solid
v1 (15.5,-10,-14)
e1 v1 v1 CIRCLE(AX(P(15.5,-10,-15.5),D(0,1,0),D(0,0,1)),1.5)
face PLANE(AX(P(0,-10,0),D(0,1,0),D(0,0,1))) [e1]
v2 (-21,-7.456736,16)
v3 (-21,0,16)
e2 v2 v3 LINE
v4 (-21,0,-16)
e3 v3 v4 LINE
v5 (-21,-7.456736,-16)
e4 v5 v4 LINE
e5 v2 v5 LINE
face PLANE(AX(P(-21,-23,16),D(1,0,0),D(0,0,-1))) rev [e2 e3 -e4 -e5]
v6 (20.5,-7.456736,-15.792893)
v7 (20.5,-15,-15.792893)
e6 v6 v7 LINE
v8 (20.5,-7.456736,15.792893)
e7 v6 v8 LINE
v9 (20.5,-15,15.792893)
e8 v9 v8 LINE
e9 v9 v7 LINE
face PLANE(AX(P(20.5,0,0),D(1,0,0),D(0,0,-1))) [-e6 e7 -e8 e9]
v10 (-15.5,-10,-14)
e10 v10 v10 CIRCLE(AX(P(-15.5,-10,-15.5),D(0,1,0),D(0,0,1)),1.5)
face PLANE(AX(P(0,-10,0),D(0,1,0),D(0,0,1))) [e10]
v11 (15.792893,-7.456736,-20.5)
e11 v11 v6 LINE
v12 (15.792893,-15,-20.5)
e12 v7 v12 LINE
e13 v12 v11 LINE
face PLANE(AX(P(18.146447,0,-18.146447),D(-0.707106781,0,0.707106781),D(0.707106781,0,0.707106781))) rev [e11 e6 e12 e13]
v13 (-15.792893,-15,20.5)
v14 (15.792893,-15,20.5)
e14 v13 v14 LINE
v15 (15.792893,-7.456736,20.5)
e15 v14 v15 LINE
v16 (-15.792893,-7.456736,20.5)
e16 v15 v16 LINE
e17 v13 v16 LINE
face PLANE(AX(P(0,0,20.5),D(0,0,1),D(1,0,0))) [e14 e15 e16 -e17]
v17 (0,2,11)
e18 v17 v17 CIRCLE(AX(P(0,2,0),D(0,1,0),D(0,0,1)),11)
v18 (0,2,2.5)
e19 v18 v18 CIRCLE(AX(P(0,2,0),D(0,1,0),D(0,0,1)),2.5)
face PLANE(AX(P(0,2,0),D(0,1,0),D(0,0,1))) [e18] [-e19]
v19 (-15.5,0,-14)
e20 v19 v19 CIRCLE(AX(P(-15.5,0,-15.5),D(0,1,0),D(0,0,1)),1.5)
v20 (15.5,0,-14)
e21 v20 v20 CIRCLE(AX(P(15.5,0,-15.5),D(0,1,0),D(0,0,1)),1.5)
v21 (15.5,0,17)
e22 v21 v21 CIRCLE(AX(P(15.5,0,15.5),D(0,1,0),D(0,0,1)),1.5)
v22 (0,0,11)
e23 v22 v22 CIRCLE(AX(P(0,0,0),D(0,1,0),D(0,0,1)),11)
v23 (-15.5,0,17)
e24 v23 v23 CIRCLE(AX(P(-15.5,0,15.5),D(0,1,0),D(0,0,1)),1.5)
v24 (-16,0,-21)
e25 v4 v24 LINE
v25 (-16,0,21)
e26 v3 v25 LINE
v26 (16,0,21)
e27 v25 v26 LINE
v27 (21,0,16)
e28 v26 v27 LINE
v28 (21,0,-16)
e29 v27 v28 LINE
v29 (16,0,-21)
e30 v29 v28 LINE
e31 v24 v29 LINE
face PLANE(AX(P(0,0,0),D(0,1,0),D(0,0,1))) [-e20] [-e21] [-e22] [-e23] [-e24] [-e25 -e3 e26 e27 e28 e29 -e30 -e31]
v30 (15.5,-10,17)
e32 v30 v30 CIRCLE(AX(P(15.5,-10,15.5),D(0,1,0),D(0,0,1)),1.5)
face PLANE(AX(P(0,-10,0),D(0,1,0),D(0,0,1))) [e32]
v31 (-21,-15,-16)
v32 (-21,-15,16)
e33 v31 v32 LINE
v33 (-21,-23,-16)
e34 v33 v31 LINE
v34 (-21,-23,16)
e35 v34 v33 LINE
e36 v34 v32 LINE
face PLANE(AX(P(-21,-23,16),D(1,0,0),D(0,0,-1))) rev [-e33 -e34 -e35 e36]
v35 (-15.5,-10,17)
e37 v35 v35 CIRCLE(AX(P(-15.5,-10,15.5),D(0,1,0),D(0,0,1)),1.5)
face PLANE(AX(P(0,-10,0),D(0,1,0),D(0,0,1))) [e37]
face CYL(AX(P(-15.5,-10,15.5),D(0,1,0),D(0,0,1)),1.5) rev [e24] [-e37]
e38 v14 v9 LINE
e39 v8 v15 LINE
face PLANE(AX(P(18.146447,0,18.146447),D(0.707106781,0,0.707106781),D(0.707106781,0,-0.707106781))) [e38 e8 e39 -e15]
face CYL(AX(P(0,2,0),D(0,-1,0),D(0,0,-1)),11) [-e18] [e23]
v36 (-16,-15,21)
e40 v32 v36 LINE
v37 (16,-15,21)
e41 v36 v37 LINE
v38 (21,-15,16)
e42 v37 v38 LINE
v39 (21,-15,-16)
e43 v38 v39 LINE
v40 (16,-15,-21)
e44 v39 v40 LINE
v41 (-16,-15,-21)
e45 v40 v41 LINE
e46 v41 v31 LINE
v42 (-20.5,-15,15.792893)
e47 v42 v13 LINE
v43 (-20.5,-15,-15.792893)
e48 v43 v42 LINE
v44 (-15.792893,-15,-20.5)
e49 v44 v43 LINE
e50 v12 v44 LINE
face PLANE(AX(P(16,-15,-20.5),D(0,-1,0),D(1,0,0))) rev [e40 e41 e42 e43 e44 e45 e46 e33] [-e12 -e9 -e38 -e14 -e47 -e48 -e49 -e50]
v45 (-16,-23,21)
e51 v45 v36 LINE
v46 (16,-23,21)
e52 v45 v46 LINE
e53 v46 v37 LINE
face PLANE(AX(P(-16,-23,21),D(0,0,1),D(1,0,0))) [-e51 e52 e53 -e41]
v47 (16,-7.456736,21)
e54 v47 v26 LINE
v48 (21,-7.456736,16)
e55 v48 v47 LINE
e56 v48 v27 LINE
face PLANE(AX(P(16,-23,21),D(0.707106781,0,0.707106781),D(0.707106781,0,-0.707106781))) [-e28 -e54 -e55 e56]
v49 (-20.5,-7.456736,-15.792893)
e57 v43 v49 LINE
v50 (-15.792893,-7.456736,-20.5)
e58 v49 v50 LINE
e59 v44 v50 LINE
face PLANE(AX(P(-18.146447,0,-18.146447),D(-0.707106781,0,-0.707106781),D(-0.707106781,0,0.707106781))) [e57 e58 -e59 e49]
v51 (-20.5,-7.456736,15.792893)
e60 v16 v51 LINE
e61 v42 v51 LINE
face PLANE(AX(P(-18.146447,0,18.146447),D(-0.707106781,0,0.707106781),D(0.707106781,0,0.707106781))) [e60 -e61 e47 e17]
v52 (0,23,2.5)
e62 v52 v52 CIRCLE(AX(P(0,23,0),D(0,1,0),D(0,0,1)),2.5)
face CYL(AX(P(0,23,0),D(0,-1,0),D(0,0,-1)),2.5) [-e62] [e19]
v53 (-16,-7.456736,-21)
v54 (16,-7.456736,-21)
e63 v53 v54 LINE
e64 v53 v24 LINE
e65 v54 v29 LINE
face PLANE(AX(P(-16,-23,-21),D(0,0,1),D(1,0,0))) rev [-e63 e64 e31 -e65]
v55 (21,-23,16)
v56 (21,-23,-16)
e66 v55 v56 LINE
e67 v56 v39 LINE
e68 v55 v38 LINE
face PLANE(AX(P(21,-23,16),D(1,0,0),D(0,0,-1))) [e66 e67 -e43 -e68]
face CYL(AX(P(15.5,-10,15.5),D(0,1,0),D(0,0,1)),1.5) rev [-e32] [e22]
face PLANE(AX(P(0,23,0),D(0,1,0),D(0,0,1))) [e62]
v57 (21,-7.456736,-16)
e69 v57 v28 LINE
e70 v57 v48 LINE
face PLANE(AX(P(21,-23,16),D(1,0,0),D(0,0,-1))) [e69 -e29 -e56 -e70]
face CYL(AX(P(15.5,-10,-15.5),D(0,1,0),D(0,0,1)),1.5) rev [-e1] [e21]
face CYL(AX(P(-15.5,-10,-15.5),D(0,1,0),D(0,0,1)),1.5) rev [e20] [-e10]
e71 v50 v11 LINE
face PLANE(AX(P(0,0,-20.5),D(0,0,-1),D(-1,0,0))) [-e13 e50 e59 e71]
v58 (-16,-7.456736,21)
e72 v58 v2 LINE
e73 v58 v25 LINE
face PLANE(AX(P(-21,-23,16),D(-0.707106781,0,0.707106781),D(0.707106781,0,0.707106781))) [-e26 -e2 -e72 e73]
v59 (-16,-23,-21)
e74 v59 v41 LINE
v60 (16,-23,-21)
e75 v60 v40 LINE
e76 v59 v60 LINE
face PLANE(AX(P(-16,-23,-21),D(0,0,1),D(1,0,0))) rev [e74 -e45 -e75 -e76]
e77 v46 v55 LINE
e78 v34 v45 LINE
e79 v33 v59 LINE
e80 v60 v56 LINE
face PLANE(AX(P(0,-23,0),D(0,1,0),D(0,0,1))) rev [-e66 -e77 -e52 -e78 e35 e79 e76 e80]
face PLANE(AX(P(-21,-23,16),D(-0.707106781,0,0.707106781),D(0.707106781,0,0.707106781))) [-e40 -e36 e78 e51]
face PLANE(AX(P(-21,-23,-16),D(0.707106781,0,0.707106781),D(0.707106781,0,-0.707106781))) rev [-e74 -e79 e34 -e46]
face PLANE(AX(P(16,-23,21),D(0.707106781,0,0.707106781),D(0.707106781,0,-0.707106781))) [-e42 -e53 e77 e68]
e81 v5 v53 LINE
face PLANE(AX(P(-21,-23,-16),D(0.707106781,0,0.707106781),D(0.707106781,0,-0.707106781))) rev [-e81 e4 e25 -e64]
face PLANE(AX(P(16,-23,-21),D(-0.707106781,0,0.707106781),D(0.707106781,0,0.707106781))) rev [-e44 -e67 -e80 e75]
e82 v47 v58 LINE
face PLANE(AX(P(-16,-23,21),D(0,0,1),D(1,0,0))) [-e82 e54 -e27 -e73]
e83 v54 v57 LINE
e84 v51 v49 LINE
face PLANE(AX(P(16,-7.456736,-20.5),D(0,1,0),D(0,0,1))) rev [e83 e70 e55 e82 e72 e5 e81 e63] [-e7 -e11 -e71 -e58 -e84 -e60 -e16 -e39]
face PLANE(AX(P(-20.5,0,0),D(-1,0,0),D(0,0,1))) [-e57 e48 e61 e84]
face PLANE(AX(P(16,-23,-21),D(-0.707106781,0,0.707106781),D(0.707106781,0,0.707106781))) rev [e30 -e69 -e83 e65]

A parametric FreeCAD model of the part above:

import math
import FreeCAD as App
import Part
import Sketcher


def add_polygon(sketch, points):
    """Adds a closed chain of lines whose ends are joined by coincident constraints."""
    first, n = sketch.GeometryCount, len(points)
    for a, b in zip(points, points[1:] + points[:1]):
        sketch.addGeometry(Part.LineSegment(App.Vector(*a, 0), App.Vector(*b, 0)), False)
    for i in range(n):
        sketch.addConstraint(Sketcher.Constraint("Coincident", first + i, 2, first + (i + 1) % n, 1))

doc = App.newDocument("Part")
body = doc.addObject("PartDesign::Body", "Body")

sketch1 = body.newObject("Sketcher::SketchObject", "Sketch")
sketch1.AttachmentSupport = (doc.getObject("XZ_Plane"), [""])
sketch1.MapMode = "FlatFace"
add_polygon(sketch1, [(-21, 16), (-16, 21), (16, 21), (21, 16), (21, -16), (16, -21), (-16, -21), (-21, -16)])
sketch1.addConstraint([
    Sketcher.Constraint("Horizontal", 1),
    Sketcher.Constraint("Vertical", 3),
    Sketcher.Constraint("Horizontal", 5),
    Sketcher.Constraint("Vertical", 7),
    Sketcher.Constraint("Symmetric", 0, 2, 4, 2, -1, 1),
    Sketcher.Constraint("Symmetric", 2, 2, 6, 2, -1, 1),
    Sketcher.Constraint("Perpendicular", 0, 2),
    Sketcher.Constraint("Perpendicular", 2, 4),
    Sketcher.Constraint("Perpendicular", 4, 6),
    Sketcher.Constraint("Horizontal", 3, 2, 6, 2),
    Sketcher.Constraint("Vertical", 1, 2, 4, 2),
    Sketcher.Constraint("Equal", 5, 3),
    Sketcher.Constraint("DistanceX", 1, 1, 1, 2, 32.0),
    Sketcher.Constraint("DistanceY", -1, 1, 0, 2, 21.0),
])
pad1 = body.newObject("PartDesign::Pad", "Pad")
pad1.Profile = sketch1
pad1.Length = 23

sketch2 = body.newObject("Sketcher::SketchObject", "Sketch001")
sketch2.AttachmentSupport = (doc.getObject("XZ_Plane"), [""])
sketch2.MapMode = "FlatFace"
sketch2.addGeometry(Part.Circle(App.Vector(0, 0, 0), App.Vector(0, 0, 1), 2.5), False)
sketch2.addConstraint([
    Sketcher.Constraint("Coincident", 0, 3, -1, 1),
    Sketcher.Constraint("Diameter", 0, 5.0),
])
pad2 = body.newObject("PartDesign::Pad", "Pad001")
pad2.Profile = sketch2
pad2.Length = 23
pad2.Reversed = True

sketch3 = body.newObject("Sketcher::SketchObject", "Sketch002")
sketch3.AttachmentSupport = (doc.getObject("XZ_Plane"), [""])
sketch3.MapMode = "FlatFace"
sketch3.addGeometry([
    Part.Circle(App.Vector(0, 0, 0), App.Vector(0, 0, 1), 11),
    Part.Circle(App.Vector(0, 0, 0), App.Vector(0, 0, 1), 2.5),
], False)
sketch3.addConstraint([
    Sketcher.Constraint("Coincident", 0, 3, -1, 1),
    Sketcher.Constraint("Coincident", 1, 3, -1, 1),
    Sketcher.Constraint("Diameter", 0, 22.0),
    Sketcher.Constraint("Diameter", 1, 5.0),
])
pad3 = body.newObject("PartDesign::Pad", "Pad002")
pad3.Profile = sketch3
pad3.Length = 2
pad3.Reversed = True

sketch4 = body.newObject("Sketcher::SketchObject", "Sketch003")
sketch4.AttachmentSupport = (doc.getObject("XZ_Plane"), [""])
sketch4.MapMode = "FlatFace"
sketch4.addGeometry([
    Part.ArcOfCircle(Part.Circle(App.Vector(-15.5, 15.5, 0), App.Vector(0, 0, 1), 1.5), math.radians(-90), math.radians(0)),
    Part.ArcOfCircle(Part.Circle(App.Vector(-15.5, 15.5, 0), App.Vector(0, 0, 1), 1.5), math.radians(0), math.radians(270)),
    Part.ArcOfCircle(Part.Circle(App.Vector(-15.5, -15.5, 0), App.Vector(0, 0, 1), 1.5), math.radians(90), math.radians(360)),
    Part.ArcOfCircle(Part.Circle(App.Vector(-15.5, -15.5, 0), App.Vector(0, 0, 1), 1.5), math.radians(0), math.radians(90)),
    Part.ArcOfCircle(Part.Circle(App.Vector(15.5, -15.5, 0), App.Vector(0, 0, 1), 1.5), math.radians(90), math.radians(180)),
    Part.ArcOfCircle(Part.Circle(App.Vector(15.5, -15.5, 0), App.Vector(0, 0, 1), 1.5), math.radians(0), math.radians(90)),
    Part.ArcOfCircle(Part.Circle(App.Vector(15.5, -15.5, 0), App.Vector(0, 0, 1), 1.5), math.radians(180), math.radians(360)),
    Part.ArcOfCircle(Part.Circle(App.Vector(15.5, 15.5, 0), App.Vector(0, 0, 1), 1.5), math.radians(180), math.radians(270)),
    Part.ArcOfCircle(Part.Circle(App.Vector(15.5, 15.5, 0), App.Vector(0, 0, 1), 1.5), math.radians(0), math.radians(180)),
    Part.ArcOfCircle(Part.Circle(App.Vector(15.5, 15.5, 0), App.Vector(0, 0, 1), 1.5), math.radians(-90), math.radians(0)),
], False)
sketch4.addConstraint([
    Sketcher.Constraint("Tangent", 0, 1, 1, 2),
    Sketcher.Constraint("Coincident", 1, 1, 0, 2),
    Sketcher.Constraint("Tangent", 2, 1, 3, 2),
    Sketcher.Constraint("Coincident", 3, 1, 2, 2),
    Sketcher.Constraint("Tangent", 4, 1, 5, 2),
    Sketcher.Constraint("Tangent", 5, 1, 6, 2),
    Sketcher.Constraint("Tangent", 6, 1, 4, 2),
    Sketcher.Constraint("Tangent", 7, 1, 8, 2),
    Sketcher.Constraint("Tangent", 8, 1, 9, 2),
    Sketcher.Constraint("Tangent", 9, 1, 7, 2),
    Sketcher.Constraint("Equal", 1, 2),
    Sketcher.Constraint("Equal", 3, 4),
    Sketcher.Constraint("Equal", 6, 7),
    Sketcher.Constraint("Symmetric", 0, 3, 4, 3, -1, 1),
    Sketcher.Constraint("Symmetric", 2, 3, 7, 3, -1, 1),
    Sketcher.Constraint("Symmetric", 2, 3, 4, 3, -2),
    Sketcher.Constraint("Horizontal", 9, 3, 1, 1),
    Sketcher.Constraint("Horizontal", 6, 3, 3, 1),
    Sketcher.Constraint("Horizontal", 3, 1, 5, 1),
    Sketcher.Constraint("Horizontal", 5, 1, 6, 1),
    Sketcher.Constraint("Horizontal", 1, 1, 7, 1),
    Sketcher.Constraint("Horizontal", 7, 1, 8, 1),
    Sketcher.Constraint("Vertical", 3, 3, 0, 1),
    Sketcher.Constraint("Vertical", 0, 1, 2, 1),
    Sketcher.Constraint("Vertical", 9, 3, 4, 1),
    Sketcher.Constraint("Vertical", 4, 1, 9, 1),
    Sketcher.Constraint("Radius", 0, 1.5),
    Sketcher.Constraint("DistanceY", -1, 1, 0, 1, 14.0),
    Sketcher.Constraint("DistanceX", 1, 1, -1, 1, 14.0),
])
pocket1 = body.newObject("PartDesign::Pocket", "Pocket")
pocket1.Profile = sketch4
pocket1.Length = 10
pocket1.Reversed = True

sketch5 = body.newObject("Sketcher::SketchObject", "Sketch004")
sketch5.AttachmentSupport = (doc.getObject("XY_Plane"), [""])
sketch5.MapMode = "FlatFace"
sketch5.AttachmentOffset = App.Placement(App.Vector(0, 0, -21), App.Rotation())
add_polygon(sketch5, [(16, -7), (16, -15), (-16, -15), (-16, -7)])
sketch5.addConstraint([
    Sketcher.Constraint("Vertical", 0),
    Sketcher.Constraint("Horizontal", 1),
    Sketcher.Constraint("Vertical", 2),
    Sketcher.Constraint("Horizontal", 3),
    Sketcher.Constraint("DistanceX", 1, 2, 1, 1, 32.0),
    Sketcher.Constraint("DistanceX", -1, 1, 0, 2, 16.0),
    Sketcher.Constraint("DistanceY", 0, 2, -1, 1, 15.0),
    Sketcher.Constraint("DistanceY", 0, 2, 0, 1, 7.543264),
])
pocket2 = body.newObject("PartDesign::Pocket", "Pocket001")
pocket2.Profile = sketch5
pocket2.Length = 0.5
pocket2.Reversed = True

sketch6 = body.newObject("Sketcher::SketchObject", "Sketch005")
sketch6.Placement = App.Placement(App.Vector(-18.5, 0, -18.5), App.Rotation(App.Vector(-0.707106781, 0, 0.707106781), App.Vector(0, 0.999999999, 0), App.Vector(-0.707106781, 0, -0.707106781), "ZXY"))
add_polygon(sketch6, [(-4, -7), (-4, -15), (4, -15), (4, -7)])
sketch6.addConstraint([
    Sketcher.Constraint("Vertical", 0),
    Sketcher.Constraint("Horizontal", 1),
    Sketcher.Constraint("Vertical", 2),
    Sketcher.Constraint("Horizontal", 3),
    Sketcher.Constraint("DistanceY", 0, 2, -1, 1, 15.0),
    Sketcher.Constraint("DistanceX", 1, 1, 1, 2, 7.071068),
    Sketcher.Constraint("DistanceY", 0, 2, 0, 1, 7.543264),
    Sketcher.Constraint("DistanceX", 0, 2, -1, 1, 3.535534),
])
pocket3 = body.newObject("PartDesign::Pocket", "Pocket002")
pocket3.Profile = sketch6
pocket3.Length = 0.5

sketch7 = body.newObject("Sketcher::SketchObject", "Sketch006")
sketch7.AttachmentSupport = (doc.getObject("YZ_Plane"), [""])
sketch7.MapMode = "FlatFace"
sketch7.AttachmentOffset = App.Placement(App.Vector(0, 0, -21), App.Rotation())
add_polygon(sketch7, [(-7, -16), (-15, -16), (-15, 16), (-7, 16)])
sketch7.addConstraint([
    Sketcher.Constraint("Horizontal", 0),
    Sketcher.Constraint("Vertical", 1),
    Sketcher.Constraint("Horizontal", 2),
    Sketcher.Constraint("Vertical", 3),
    Sketcher.Constraint("DistanceY", 1, 1, 1, 2, 32.0),
    Sketcher.Constraint("DistanceX", 0, 2, -1, 1, 15.0),
    Sketcher.Constraint("DistanceY", 0, 2, -1, 1, 16.0),
    Sketcher.Constraint("DistanceX", 0, 2, 0, 1, 7.543264),
])
pocket4 = body.newObject("PartDesign::Pocket", "Pocket003")
pocket4.Profile = sketch7
pocket4.Length = 0.5
pocket4.Reversed = True

sketch8 = body.newObject("Sketcher::SketchObject", "Sketch007")
sketch8.Placement = App.Placement(App.Vector(-18.5, 0, 18.5), App.Rotation(App.Vector(0.707106781, 0, 0.707106781), App.Vector(0, 0.999999999, 0), App.Vector(-0.707106781, 0, 0.707106781), "ZXY"))
add_polygon(sketch8, [(-4, -7), (-4, -15), (4, -15), (4, -7)])
sketch8.addConstraint([
    Sketcher.Constraint("Vertical", 0),
    Sketcher.Constraint("Horizontal", 1),
    Sketcher.Constraint("Vertical", 2),
    Sketcher.Constraint("Horizontal", 3),
    Sketcher.Constraint("DistanceY", 0, 2, -1, 1, 15.0),
    Sketcher.Constraint("DistanceX", 1, 1, 1, 2, 7.071068),
    Sketcher.Constraint("DistanceY", 0, 2, 0, 1, 7.543264),
    Sketcher.Constraint("DistanceX", 0, 2, -1, 1, 3.535534),
])
pocket5 = body.newObject("PartDesign::Pocket", "Pocket004")
pocket5.Profile = sketch8
pocket5.Length = 0.5

sketch9 = body.newObject("Sketcher::SketchObject", "Sketch008")
sketch9.AttachmentSupport = (doc.getObject("XY_Plane"), [""])
sketch9.MapMode = "FlatFace"
sketch9.AttachmentOffset = App.Placement(App.Vector(0, 0, 21), App.Rotation())
add_polygon(sketch9, [(-16, -7), (-16, -15), (16, -15), (16, -7)])
sketch9.addConstraint([
    Sketcher.Constraint("Vertical", 0),
    Sketcher.Constraint("Horizontal", 1),
    Sketcher.Constraint("Vertical", 2),
    Sketcher.Constraint("Horizontal", 3),
    Sketcher.Constraint("DistanceX", 1, 1, 1, 2, 32.0),
    Sketcher.Constraint("DistanceX", 0, 2, -1, 1, 16.0),
    Sketcher.Constraint("DistanceY", 0, 2, -1, 1, 15.0),
    Sketcher.Constraint("DistanceY", 0, 2, 0, 1, 7.543264),
])
pocket6 = body.newObject("PartDesign::Pocket", "Pocket005")
pocket6.Profile = sketch9
pocket6.Length = 0.5

sketch10 = body.newObject("Sketcher::SketchObject", "Sketch009")
sketch10.Placement = App.Placement(App.Vector(18.5, 0, 18.5), App.Rotation(App.Vector(0.707106781, 0, -0.707106781), App.Vector(0, 0.999999999, 0), App.Vector(0.707106781, 0, 0.707106781), "ZXY"))
add_polygon(sketch10, [(-4, -7), (-4, -15), (4, -15), (4, -7)])
sketch10.addConstraint([
    Sketcher.Constraint("Vertical", 0),
    Sketcher.Constraint("Horizontal", 1),
    Sketcher.Constraint("Vertical", 2),
    Sketcher.Constraint("Horizontal", 3),
    Sketcher.Constraint("DistanceY", 0, 2, -1, 1, 15.0),
    Sketcher.Constraint("DistanceX", 1, 1, 1, 2, 7.071068),
    Sketcher.Constraint("DistanceY", 0, 2, 0, 1, 7.543264),
    Sketcher.Constraint("DistanceX", 0, 2, -1, 1, 3.535534),
])
pocket7 = body.newObject("PartDesign::Pocket", "Pocket006")
pocket7.Profile = sketch10
pocket7.Length = 0.5

sketch11 = body.newObject("Sketcher::SketchObject", "Sketch010")
sketch11.AttachmentSupport = (doc.getObject("YZ_Plane"), [""])
sketch11.MapMode = "FlatFace"
sketch11.AttachmentOffset = App.Placement(App.Vector(0, 0, 21), App.Rotation())
add_polygon(sketch11, [(-7, 16), (-15, 16), (-15, -16), (-7, -16)])
sketch11.addConstraint([
    Sketcher.Constraint("Horizontal", 0),
    Sketcher.Constraint("Vertical", 1),
    Sketcher.Constraint("Horizontal", 2),
    Sketcher.Constraint("Vertical", 3),
    Sketcher.Constraint("DistanceY", 1, 2, 1, 1, 32.0),
    Sketcher.Constraint("DistanceX", 0, 2, -1, 1, 15.0),
    Sketcher.Constraint("DistanceY", -1, 1, 0, 2, 16.0),
    Sketcher.Constraint("DistanceX", 0, 2, 0, 1, 7.543264),
])
pocket8 = body.newObject("PartDesign::Pocket", "Pocket007")
pocket8.Profile = sketch11
pocket8.Length = 0.5

sketch12 = body.newObject("Sketcher::SketchObject", "Sketch011")
sketch12.Placement = App.Placement(App.Vector(18.5, 0, -18.5), App.Rotation(App.Vector(-0.707106781, 0, -0.707106781), App.Vector(0, 0.999999999, 0), App.Vector(0.707106781, 0, -0.707106781), "ZXY"))
add_polygon(sketch12, [(-4, -7), (-4, -15), (4, -15), (4, -7)])
sketch12.addConstraint([
    Sketcher.Constraint("Vertical", 0),
    Sketcher.Constraint("Horizontal", 1),
    Sketcher.Constraint("Vertical", 2),
    Sketcher.Constraint("Horizontal", 3),
    Sketcher.Constraint("DistanceY", 0, 2, -1, 1, 15.0),
    Sketcher.Constraint("DistanceX", 1, 1, 1, 2, 7.071068),
    Sketcher.Constraint("DistanceY", 0, 2, 0, 1, 7.543264),
    Sketcher.Constraint("DistanceX", 0, 2, -1, 1, 3.535534),
])
pocket9 = body.newObject("PartDesign::Pocket", "Pocket008")
pocket9.Profile = sketch12
pocket9.Length = 0.5

doc.recompute()
